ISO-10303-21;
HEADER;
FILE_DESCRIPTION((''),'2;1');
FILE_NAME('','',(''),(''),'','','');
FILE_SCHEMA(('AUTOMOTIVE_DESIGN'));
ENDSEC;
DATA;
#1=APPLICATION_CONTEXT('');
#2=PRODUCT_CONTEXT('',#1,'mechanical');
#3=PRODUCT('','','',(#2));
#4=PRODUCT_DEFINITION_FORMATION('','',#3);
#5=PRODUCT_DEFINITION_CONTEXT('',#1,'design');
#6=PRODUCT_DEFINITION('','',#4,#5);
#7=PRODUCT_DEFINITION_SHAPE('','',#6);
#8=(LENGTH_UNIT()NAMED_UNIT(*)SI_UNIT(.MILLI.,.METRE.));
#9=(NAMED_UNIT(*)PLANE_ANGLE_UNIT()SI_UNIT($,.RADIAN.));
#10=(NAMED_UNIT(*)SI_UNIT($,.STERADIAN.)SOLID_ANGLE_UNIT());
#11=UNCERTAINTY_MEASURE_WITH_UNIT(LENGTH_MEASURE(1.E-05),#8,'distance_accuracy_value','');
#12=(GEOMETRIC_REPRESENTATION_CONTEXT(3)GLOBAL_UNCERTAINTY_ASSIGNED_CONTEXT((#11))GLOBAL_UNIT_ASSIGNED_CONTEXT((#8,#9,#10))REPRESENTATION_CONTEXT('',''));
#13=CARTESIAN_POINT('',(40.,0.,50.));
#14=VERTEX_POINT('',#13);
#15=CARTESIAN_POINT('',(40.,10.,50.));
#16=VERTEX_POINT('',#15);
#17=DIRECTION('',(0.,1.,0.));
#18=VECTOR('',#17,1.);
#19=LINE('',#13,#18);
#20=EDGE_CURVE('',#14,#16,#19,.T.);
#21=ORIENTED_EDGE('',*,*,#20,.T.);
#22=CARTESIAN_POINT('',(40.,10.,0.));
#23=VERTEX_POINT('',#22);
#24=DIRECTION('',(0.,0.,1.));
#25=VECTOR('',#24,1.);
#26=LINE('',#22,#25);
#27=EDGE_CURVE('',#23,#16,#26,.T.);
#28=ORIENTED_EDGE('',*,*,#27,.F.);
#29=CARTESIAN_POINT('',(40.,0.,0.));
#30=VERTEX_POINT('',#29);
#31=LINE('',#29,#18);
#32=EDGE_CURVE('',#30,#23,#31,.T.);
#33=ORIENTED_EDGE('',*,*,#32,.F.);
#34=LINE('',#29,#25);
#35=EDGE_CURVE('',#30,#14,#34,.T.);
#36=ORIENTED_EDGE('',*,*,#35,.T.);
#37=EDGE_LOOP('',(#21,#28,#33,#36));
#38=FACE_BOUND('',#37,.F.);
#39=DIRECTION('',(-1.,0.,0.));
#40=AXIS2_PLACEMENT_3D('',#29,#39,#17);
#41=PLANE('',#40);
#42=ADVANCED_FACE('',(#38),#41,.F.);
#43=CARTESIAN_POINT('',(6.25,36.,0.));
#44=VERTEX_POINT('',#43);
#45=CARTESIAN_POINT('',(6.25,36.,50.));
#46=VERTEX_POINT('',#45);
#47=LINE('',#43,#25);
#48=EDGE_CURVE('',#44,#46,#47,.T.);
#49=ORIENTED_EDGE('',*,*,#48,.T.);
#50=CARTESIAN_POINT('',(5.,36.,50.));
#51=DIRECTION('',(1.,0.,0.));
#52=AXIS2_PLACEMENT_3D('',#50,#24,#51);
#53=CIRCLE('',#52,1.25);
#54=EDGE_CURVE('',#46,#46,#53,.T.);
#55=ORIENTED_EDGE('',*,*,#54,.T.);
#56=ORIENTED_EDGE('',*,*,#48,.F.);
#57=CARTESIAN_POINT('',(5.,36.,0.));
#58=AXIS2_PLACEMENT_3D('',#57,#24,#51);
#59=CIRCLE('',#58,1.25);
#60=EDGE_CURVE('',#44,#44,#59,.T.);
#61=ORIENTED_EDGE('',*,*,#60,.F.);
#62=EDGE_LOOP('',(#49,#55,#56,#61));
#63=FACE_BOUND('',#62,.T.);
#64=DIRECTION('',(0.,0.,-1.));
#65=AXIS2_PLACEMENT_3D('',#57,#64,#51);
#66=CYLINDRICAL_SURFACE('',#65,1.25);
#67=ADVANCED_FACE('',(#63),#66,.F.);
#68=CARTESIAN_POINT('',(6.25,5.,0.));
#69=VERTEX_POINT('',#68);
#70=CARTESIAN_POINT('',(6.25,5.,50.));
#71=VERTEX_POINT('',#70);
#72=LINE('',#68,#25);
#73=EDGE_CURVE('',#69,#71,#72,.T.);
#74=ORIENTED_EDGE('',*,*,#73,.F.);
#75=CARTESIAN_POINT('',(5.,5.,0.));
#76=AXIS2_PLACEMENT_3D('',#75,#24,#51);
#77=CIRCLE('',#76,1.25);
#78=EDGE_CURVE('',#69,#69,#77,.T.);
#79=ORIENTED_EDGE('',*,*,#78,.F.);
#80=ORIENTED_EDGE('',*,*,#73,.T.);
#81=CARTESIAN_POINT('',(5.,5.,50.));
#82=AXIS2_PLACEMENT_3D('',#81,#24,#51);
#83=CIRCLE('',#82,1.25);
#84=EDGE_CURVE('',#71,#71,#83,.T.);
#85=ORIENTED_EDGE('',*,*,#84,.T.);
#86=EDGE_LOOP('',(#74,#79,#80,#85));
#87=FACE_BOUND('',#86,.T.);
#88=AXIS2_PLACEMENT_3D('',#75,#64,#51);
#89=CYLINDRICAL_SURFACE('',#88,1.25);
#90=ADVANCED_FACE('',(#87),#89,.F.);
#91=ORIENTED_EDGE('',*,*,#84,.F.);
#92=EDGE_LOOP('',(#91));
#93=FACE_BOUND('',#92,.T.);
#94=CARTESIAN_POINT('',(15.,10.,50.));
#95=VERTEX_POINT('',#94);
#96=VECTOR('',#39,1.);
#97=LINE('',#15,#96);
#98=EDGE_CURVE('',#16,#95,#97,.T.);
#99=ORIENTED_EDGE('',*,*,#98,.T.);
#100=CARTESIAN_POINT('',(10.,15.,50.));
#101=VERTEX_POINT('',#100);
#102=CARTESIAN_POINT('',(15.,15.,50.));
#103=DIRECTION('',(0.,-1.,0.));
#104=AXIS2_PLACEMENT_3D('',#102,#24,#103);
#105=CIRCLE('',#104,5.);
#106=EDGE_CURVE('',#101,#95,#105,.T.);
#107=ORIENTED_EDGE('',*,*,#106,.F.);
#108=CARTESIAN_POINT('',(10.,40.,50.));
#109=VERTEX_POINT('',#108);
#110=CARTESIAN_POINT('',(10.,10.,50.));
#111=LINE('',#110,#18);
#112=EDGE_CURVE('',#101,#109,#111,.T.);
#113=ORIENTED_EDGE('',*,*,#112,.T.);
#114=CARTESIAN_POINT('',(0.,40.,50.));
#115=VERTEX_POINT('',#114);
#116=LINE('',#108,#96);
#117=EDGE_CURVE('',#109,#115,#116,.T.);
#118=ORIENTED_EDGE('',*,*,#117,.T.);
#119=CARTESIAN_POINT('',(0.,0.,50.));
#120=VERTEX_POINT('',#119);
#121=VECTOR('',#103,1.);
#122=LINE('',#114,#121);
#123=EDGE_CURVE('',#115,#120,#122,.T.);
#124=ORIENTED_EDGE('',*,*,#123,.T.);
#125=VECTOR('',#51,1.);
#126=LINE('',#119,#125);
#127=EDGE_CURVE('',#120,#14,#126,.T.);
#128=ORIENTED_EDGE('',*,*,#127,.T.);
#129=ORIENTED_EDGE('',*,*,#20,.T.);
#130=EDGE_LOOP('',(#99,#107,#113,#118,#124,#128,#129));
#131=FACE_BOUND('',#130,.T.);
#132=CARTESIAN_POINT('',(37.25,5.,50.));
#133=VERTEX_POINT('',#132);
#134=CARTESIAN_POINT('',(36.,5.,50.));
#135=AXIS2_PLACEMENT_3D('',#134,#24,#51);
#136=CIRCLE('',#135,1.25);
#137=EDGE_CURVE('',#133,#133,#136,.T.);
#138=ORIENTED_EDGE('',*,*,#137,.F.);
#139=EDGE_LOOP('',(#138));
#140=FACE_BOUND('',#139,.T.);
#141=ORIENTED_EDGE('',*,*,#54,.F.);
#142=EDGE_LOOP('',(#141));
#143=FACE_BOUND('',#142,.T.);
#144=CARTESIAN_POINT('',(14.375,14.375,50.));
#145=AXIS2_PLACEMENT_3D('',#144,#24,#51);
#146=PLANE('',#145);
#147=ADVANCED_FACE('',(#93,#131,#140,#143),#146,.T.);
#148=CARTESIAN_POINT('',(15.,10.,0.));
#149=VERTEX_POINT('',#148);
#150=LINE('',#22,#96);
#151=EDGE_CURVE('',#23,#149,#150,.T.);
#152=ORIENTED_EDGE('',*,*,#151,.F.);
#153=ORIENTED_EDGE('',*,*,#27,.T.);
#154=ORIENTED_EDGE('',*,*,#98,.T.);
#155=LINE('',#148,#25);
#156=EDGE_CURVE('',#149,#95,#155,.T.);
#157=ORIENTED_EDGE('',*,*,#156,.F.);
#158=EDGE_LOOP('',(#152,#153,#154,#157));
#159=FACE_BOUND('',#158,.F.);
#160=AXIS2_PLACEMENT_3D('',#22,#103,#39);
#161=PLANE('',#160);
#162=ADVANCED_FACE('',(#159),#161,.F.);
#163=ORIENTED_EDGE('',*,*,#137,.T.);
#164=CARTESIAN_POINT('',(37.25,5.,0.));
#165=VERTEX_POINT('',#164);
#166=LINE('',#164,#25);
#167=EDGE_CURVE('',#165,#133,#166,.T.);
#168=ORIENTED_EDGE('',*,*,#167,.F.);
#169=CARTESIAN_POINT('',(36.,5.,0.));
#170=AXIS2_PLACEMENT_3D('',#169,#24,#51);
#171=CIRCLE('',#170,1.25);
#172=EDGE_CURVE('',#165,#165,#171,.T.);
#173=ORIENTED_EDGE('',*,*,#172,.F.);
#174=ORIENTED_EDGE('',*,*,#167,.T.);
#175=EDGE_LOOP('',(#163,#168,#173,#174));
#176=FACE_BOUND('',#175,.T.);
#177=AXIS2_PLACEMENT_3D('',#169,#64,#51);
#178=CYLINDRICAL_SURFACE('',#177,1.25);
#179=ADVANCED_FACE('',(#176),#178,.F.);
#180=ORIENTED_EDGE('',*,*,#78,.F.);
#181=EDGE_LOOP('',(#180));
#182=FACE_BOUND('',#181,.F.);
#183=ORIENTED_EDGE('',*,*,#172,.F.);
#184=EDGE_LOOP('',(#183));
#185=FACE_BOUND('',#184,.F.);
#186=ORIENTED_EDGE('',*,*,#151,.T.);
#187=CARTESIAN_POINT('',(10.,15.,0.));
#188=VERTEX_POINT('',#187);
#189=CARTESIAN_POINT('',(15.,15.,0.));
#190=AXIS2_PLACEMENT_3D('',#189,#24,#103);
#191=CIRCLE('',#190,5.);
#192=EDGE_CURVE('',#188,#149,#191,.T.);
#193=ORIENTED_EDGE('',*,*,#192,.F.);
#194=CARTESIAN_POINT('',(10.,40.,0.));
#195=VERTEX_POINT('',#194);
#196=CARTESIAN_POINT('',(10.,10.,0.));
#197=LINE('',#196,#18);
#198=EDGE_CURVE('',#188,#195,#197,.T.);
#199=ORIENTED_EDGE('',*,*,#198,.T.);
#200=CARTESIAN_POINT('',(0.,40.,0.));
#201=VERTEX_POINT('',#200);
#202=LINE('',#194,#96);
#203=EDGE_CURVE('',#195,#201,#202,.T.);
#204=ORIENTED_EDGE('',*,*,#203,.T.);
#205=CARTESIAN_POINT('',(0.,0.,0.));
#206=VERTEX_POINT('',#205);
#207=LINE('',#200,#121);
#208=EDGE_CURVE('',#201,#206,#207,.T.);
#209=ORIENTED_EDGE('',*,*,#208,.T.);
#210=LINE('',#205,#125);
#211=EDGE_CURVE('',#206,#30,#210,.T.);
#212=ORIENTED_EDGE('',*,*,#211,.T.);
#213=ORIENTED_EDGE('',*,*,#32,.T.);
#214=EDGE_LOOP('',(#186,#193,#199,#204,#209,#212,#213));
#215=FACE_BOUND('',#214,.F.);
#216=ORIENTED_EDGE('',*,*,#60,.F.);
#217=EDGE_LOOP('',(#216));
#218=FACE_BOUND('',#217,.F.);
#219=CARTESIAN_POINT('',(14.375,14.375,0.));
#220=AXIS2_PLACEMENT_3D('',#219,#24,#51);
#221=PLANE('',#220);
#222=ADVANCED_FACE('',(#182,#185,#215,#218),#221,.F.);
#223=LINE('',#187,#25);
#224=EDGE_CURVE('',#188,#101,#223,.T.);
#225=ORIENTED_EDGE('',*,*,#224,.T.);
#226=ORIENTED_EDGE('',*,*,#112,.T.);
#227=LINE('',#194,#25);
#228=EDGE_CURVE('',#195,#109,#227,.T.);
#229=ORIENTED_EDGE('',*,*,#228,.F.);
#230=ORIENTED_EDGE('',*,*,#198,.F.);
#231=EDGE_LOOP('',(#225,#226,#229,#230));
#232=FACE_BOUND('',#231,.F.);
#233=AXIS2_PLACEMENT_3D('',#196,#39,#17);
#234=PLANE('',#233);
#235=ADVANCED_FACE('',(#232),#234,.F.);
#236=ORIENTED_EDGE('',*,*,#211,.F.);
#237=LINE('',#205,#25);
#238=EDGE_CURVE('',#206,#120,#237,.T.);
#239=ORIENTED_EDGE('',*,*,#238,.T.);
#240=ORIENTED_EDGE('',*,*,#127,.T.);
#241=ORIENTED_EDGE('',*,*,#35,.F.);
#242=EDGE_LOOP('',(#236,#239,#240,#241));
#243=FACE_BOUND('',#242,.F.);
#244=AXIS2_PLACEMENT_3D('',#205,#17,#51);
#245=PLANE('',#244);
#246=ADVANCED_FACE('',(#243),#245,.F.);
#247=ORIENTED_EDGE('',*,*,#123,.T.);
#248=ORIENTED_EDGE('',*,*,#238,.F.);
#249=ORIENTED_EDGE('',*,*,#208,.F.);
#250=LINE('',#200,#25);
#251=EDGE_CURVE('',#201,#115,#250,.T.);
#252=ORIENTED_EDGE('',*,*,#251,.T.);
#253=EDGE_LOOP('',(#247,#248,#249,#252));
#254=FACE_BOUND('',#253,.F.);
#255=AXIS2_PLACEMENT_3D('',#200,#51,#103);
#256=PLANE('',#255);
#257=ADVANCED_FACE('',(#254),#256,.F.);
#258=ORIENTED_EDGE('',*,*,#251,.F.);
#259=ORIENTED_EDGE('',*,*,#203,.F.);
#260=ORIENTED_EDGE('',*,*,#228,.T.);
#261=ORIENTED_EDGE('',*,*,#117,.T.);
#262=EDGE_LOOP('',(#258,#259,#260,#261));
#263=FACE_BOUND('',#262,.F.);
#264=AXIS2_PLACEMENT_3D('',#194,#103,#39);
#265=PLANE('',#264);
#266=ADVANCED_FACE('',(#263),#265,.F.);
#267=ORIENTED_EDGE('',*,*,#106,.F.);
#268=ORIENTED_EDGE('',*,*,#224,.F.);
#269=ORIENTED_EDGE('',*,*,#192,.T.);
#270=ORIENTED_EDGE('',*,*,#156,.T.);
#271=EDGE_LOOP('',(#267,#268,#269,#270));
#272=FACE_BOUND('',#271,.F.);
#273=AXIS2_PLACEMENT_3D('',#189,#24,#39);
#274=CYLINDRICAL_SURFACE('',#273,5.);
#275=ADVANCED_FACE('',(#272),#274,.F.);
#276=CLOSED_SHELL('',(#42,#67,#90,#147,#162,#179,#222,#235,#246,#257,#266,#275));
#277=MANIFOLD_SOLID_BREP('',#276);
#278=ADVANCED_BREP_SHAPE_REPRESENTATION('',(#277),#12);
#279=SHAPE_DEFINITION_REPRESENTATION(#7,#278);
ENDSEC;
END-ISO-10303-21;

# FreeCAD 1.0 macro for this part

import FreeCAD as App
import Part
import Sketcher


def edges_at(feature, points):
    """Names of the edges that pass closest to the given points."""
    edges = feature.Shape.Edges
    near = lambda p: min(range(len(edges)), key=lambda i: edges[i].distToShape(Part.Vertex(*p))[0])
    return sorted({f"Edge{near(p) + 1}" for p in points})

doc = App.newDocument("Part")
body = doc.addObject("PartDesign::Body", "Body")

# Sketch on XY plane
sketch1 = doc.addObject("Sketcher::SketchObject", "Sketch")
body.addObject(sketch1)
sketch1.AttachmentSupport = (doc.XY_Plane, [""])
sketch1.MapMode = "FlatFace"
sketch1.addGeometry([
    Part.LineSegment(App.Vector(10, 40, 0), App.Vector(0, 40, 0)),  # 0
    Part.LineSegment(App.Vector(0, 40, 0), App.Vector(0, 0, 0)),  # 1
    Part.LineSegment(App.Vector(0, 0, 0), App.Vector(40, 0, 0)),  # 2
    Part.LineSegment(App.Vector(40, 0, 0), App.Vector(40, 10, 0)),  # 3
    Part.LineSegment(App.Vector(40, 10, 0), App.Vector(10, 10, 0)),  # 4
    Part.LineSegment(App.Vector(10, 10, 0), App.Vector(10, 40, 0)),  # 5
    Part.Circle(App.Vector(5, 5, 0), App.Vector(0, 0, 1), 1.2),  # 6
    Part.Circle(App.Vector(36, 5, 0), App.Vector(0, 0, 1), 1.2),  # 7
    Part.Circle(App.Vector(5, 36, 0), App.Vector(0, 0, 1), 1.2),  # 8
], False)
sketch1.addConstraint([
    Sketcher.Constraint("Coincident", 0, 2, 1, 1),
    Sketcher.Constraint("Coincident", 1, 2, 2, 1),
    Sketcher.Constraint("Coincident", 2, 2, 3, 1),
    Sketcher.Constraint("Coincident", 3, 2, 4, 1),
    Sketcher.Constraint("Coincident", 4, 2, 5, 1),
    Sketcher.Constraint("Coincident", 5, 2, 0, 1),
    Sketcher.Constraint("Horizontal", 0),
    Sketcher.Constraint("Vertical", 1),
    Sketcher.Constraint("Horizontal", 2),
    Sketcher.Constraint("Vertical", 3),
    Sketcher.Constraint("Horizontal", 4),
    Sketcher.Constraint("Vertical", 5),
    Sketcher.Constraint("Coincident", 1, 2, -1, 1),
    Sketcher.Constraint("Equal", 6, 7),
    Sketcher.Constraint("Equal", 7, 8),
    Sketcher.Constraint("Horizontal", 6, 3, 7, 3),
    Sketcher.Constraint("Vertical", 6, 3, 8, 3),
    Sketcher.Constraint("Equal", 2, 1),
    Sketcher.Constraint("Equal", 0, 3),
    Sketcher.Constraint("Diameter", 6, 2.5),
    Sketcher.Constraint("DistanceX", 0, 2, 0, 1, 10.0),
    Sketcher.Constraint("DistanceX", 2, 1, 2, 2, 40.0),
    Sketcher.Constraint("DistanceX", -1, 1, 6, 3, 5.0),
    Sketcher.Constraint("DistanceY", -1, 1, 6, 3, 5.0),
    Sketcher.Constraint("DistanceX", -1, 1, 7, 3, 36.0),
    Sketcher.Constraint("DistanceY", -1, 1, 8, 3, 36.0),
])
pad1 = doc.addObject("PartDesign::Pad", "Pad")
body.addObject(pad1)
pad1.Profile = sketch1
pad1.Length = 50
doc.recompute()

fillet = doc.addObject("PartDesign::Fillet", "Fillet")
body.addObject(fillet)
fillet.Base = (pad1, edges_at(pad1, [(10, 10, 25)]))
fillet.Radius = 5

doc.recompute()
